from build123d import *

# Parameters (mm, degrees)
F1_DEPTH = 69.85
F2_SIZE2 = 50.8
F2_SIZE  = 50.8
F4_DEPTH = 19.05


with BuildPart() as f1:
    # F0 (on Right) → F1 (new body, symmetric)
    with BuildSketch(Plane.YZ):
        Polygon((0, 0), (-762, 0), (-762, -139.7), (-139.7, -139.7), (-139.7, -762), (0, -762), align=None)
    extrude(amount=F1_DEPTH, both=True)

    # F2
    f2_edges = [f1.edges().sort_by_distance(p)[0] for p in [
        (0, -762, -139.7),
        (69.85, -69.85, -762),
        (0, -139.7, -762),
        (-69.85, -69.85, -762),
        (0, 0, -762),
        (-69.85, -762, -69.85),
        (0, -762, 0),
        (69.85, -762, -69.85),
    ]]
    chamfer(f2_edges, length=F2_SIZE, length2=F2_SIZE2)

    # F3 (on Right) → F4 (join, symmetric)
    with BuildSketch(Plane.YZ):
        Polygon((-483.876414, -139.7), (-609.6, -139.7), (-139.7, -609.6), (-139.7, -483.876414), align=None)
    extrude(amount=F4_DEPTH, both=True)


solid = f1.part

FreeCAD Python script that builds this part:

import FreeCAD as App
import Part
import Sketcher
Q = App.Units.Quantity


def edges_at(feature, points):
    """Names of the edges that pass closest to the given points."""
    edges = feature.Shape.Edges
    near = lambda p: min(range(len(edges)), key=lambda i: edges[i].distToShape(Part.Vertex(*p))[0])
    return sorted({f"Edge{near(p) + 1}" for p in points})


def add_polygon(sketch, points):
    """Adds a closed chain of lines whose ends are joined by coincident constraints."""
    first, n = sketch.GeometryCount, len(points)
    for a, b in zip(points, points[1:] + points[:1]):
        sketch.addGeometry(Part.LineSegment(App.Vector(*a, 0), App.Vector(*b, 0)), False)
    for i in range(n):
        sketch.addConstraint(Sketcher.Constraint("Coincident", first + i, 2, first + (i + 1) % n, 1))

doc = App.newDocument("Part")
body = doc.addObject("PartDesign::Body", "Body")

# Sketch on YZ plane
sketch1 = body.newObject("Sketcher::SketchObject", "Sketch")
sketch1.AttachmentSupport = (doc.getObject("YZ_Plane"), [""])
sketch1.MapMode = "FlatFace"
add_polygon(sketch1, [(0, 0), (-762, 0), (-762, -140), (-140, -140), (-140, -762), (0, -762)])  # lines 0-5
sketch1.addConstraint([
    Sketcher.Constraint("Horizontal", 0),
    Sketcher.Constraint("Vertical", 1),
    Sketcher.Constraint("Horizontal", 2),
    Sketcher.Constraint("Vertical", 3),
    Sketcher.Constraint("Horizontal", 4),
    Sketcher.Constraint("Vertical", 5),
    Sketcher.Constraint("Coincident", 5, 2, -1, 1),
    Sketcher.Constraint("Equal", 4, 1),
    Sketcher.Constraint("Equal", 2, 3),
    Sketcher.Constraint("DistanceX", 0, 2, 0, 1, Q("30 in")),
    Sketcher.Constraint("DistanceX", 2, 1, 2, 2, Q("24.5 in")),
])
pad1 = body.newObject("PartDesign::Pad", "Pad")
pad1.Profile = sketch1
pad1.Length = Q("5.5 in")
pad1.Midplane = True
doc.recompute()

chamfer = body.newObject("PartDesign::Chamfer", "Chamfer")
chamfer.Base = (pad1, edges_at(pad1, [
    (0, -762, -139.7),
    (69.85, -69.85, -762),
    (0, -139.7, -762),
    (-69.85, -69.85, -762),
    (0, 0, -762),
    (-69.85, -762, -69.85),
    (0, -762, 0),
    (69.85, -762, -69.85),
]))
chamfer.ChamferType = "Two distances"
chamfer.Size = Q("2 in")
chamfer.Size2 = Q("2 in")

# Sketch on YZ plane
sketch2 = body.newObject("Sketcher::SketchObject", "Sketch001")
sketch2.AttachmentSupport = (doc.getObject("YZ_Plane"), [""])
sketch2.MapMode = "FlatFace"
add_polygon(sketch2, [(-484, -140), (-610, -140), (-140, -610), (-140, -484)])  # lines 0-3
sketch2.addConstraint([
    Sketcher.Constraint("Horizontal", 0),
    Sketcher.Constraint("Vertical", 2),
    Sketcher.Constraint("Parallel", 1, 3),
    Sketcher.Constraint("Equal", 0, 2),
    Sketcher.Constraint("DistanceX", 0, 2, -1, 1, Q("24 in")),
    Sketcher.Constraint("DistanceY", 1, 2, -1, 1, Q("24 in")),
    Sketcher.Constraint("DistanceY", 0, 2, -1, 1, Q("5.5 in")),
    Sketcher.Constraint("DistanceX", 0, 2, 0, 1, Q("125.723586 mm")),
])
pad2 = body.newObject("PartDesign::Pad", "Pad001")
pad2.Profile = sketch2
pad2.Length = Q("1.5 in")
pad2.Midplane = True

doc.recompute()
